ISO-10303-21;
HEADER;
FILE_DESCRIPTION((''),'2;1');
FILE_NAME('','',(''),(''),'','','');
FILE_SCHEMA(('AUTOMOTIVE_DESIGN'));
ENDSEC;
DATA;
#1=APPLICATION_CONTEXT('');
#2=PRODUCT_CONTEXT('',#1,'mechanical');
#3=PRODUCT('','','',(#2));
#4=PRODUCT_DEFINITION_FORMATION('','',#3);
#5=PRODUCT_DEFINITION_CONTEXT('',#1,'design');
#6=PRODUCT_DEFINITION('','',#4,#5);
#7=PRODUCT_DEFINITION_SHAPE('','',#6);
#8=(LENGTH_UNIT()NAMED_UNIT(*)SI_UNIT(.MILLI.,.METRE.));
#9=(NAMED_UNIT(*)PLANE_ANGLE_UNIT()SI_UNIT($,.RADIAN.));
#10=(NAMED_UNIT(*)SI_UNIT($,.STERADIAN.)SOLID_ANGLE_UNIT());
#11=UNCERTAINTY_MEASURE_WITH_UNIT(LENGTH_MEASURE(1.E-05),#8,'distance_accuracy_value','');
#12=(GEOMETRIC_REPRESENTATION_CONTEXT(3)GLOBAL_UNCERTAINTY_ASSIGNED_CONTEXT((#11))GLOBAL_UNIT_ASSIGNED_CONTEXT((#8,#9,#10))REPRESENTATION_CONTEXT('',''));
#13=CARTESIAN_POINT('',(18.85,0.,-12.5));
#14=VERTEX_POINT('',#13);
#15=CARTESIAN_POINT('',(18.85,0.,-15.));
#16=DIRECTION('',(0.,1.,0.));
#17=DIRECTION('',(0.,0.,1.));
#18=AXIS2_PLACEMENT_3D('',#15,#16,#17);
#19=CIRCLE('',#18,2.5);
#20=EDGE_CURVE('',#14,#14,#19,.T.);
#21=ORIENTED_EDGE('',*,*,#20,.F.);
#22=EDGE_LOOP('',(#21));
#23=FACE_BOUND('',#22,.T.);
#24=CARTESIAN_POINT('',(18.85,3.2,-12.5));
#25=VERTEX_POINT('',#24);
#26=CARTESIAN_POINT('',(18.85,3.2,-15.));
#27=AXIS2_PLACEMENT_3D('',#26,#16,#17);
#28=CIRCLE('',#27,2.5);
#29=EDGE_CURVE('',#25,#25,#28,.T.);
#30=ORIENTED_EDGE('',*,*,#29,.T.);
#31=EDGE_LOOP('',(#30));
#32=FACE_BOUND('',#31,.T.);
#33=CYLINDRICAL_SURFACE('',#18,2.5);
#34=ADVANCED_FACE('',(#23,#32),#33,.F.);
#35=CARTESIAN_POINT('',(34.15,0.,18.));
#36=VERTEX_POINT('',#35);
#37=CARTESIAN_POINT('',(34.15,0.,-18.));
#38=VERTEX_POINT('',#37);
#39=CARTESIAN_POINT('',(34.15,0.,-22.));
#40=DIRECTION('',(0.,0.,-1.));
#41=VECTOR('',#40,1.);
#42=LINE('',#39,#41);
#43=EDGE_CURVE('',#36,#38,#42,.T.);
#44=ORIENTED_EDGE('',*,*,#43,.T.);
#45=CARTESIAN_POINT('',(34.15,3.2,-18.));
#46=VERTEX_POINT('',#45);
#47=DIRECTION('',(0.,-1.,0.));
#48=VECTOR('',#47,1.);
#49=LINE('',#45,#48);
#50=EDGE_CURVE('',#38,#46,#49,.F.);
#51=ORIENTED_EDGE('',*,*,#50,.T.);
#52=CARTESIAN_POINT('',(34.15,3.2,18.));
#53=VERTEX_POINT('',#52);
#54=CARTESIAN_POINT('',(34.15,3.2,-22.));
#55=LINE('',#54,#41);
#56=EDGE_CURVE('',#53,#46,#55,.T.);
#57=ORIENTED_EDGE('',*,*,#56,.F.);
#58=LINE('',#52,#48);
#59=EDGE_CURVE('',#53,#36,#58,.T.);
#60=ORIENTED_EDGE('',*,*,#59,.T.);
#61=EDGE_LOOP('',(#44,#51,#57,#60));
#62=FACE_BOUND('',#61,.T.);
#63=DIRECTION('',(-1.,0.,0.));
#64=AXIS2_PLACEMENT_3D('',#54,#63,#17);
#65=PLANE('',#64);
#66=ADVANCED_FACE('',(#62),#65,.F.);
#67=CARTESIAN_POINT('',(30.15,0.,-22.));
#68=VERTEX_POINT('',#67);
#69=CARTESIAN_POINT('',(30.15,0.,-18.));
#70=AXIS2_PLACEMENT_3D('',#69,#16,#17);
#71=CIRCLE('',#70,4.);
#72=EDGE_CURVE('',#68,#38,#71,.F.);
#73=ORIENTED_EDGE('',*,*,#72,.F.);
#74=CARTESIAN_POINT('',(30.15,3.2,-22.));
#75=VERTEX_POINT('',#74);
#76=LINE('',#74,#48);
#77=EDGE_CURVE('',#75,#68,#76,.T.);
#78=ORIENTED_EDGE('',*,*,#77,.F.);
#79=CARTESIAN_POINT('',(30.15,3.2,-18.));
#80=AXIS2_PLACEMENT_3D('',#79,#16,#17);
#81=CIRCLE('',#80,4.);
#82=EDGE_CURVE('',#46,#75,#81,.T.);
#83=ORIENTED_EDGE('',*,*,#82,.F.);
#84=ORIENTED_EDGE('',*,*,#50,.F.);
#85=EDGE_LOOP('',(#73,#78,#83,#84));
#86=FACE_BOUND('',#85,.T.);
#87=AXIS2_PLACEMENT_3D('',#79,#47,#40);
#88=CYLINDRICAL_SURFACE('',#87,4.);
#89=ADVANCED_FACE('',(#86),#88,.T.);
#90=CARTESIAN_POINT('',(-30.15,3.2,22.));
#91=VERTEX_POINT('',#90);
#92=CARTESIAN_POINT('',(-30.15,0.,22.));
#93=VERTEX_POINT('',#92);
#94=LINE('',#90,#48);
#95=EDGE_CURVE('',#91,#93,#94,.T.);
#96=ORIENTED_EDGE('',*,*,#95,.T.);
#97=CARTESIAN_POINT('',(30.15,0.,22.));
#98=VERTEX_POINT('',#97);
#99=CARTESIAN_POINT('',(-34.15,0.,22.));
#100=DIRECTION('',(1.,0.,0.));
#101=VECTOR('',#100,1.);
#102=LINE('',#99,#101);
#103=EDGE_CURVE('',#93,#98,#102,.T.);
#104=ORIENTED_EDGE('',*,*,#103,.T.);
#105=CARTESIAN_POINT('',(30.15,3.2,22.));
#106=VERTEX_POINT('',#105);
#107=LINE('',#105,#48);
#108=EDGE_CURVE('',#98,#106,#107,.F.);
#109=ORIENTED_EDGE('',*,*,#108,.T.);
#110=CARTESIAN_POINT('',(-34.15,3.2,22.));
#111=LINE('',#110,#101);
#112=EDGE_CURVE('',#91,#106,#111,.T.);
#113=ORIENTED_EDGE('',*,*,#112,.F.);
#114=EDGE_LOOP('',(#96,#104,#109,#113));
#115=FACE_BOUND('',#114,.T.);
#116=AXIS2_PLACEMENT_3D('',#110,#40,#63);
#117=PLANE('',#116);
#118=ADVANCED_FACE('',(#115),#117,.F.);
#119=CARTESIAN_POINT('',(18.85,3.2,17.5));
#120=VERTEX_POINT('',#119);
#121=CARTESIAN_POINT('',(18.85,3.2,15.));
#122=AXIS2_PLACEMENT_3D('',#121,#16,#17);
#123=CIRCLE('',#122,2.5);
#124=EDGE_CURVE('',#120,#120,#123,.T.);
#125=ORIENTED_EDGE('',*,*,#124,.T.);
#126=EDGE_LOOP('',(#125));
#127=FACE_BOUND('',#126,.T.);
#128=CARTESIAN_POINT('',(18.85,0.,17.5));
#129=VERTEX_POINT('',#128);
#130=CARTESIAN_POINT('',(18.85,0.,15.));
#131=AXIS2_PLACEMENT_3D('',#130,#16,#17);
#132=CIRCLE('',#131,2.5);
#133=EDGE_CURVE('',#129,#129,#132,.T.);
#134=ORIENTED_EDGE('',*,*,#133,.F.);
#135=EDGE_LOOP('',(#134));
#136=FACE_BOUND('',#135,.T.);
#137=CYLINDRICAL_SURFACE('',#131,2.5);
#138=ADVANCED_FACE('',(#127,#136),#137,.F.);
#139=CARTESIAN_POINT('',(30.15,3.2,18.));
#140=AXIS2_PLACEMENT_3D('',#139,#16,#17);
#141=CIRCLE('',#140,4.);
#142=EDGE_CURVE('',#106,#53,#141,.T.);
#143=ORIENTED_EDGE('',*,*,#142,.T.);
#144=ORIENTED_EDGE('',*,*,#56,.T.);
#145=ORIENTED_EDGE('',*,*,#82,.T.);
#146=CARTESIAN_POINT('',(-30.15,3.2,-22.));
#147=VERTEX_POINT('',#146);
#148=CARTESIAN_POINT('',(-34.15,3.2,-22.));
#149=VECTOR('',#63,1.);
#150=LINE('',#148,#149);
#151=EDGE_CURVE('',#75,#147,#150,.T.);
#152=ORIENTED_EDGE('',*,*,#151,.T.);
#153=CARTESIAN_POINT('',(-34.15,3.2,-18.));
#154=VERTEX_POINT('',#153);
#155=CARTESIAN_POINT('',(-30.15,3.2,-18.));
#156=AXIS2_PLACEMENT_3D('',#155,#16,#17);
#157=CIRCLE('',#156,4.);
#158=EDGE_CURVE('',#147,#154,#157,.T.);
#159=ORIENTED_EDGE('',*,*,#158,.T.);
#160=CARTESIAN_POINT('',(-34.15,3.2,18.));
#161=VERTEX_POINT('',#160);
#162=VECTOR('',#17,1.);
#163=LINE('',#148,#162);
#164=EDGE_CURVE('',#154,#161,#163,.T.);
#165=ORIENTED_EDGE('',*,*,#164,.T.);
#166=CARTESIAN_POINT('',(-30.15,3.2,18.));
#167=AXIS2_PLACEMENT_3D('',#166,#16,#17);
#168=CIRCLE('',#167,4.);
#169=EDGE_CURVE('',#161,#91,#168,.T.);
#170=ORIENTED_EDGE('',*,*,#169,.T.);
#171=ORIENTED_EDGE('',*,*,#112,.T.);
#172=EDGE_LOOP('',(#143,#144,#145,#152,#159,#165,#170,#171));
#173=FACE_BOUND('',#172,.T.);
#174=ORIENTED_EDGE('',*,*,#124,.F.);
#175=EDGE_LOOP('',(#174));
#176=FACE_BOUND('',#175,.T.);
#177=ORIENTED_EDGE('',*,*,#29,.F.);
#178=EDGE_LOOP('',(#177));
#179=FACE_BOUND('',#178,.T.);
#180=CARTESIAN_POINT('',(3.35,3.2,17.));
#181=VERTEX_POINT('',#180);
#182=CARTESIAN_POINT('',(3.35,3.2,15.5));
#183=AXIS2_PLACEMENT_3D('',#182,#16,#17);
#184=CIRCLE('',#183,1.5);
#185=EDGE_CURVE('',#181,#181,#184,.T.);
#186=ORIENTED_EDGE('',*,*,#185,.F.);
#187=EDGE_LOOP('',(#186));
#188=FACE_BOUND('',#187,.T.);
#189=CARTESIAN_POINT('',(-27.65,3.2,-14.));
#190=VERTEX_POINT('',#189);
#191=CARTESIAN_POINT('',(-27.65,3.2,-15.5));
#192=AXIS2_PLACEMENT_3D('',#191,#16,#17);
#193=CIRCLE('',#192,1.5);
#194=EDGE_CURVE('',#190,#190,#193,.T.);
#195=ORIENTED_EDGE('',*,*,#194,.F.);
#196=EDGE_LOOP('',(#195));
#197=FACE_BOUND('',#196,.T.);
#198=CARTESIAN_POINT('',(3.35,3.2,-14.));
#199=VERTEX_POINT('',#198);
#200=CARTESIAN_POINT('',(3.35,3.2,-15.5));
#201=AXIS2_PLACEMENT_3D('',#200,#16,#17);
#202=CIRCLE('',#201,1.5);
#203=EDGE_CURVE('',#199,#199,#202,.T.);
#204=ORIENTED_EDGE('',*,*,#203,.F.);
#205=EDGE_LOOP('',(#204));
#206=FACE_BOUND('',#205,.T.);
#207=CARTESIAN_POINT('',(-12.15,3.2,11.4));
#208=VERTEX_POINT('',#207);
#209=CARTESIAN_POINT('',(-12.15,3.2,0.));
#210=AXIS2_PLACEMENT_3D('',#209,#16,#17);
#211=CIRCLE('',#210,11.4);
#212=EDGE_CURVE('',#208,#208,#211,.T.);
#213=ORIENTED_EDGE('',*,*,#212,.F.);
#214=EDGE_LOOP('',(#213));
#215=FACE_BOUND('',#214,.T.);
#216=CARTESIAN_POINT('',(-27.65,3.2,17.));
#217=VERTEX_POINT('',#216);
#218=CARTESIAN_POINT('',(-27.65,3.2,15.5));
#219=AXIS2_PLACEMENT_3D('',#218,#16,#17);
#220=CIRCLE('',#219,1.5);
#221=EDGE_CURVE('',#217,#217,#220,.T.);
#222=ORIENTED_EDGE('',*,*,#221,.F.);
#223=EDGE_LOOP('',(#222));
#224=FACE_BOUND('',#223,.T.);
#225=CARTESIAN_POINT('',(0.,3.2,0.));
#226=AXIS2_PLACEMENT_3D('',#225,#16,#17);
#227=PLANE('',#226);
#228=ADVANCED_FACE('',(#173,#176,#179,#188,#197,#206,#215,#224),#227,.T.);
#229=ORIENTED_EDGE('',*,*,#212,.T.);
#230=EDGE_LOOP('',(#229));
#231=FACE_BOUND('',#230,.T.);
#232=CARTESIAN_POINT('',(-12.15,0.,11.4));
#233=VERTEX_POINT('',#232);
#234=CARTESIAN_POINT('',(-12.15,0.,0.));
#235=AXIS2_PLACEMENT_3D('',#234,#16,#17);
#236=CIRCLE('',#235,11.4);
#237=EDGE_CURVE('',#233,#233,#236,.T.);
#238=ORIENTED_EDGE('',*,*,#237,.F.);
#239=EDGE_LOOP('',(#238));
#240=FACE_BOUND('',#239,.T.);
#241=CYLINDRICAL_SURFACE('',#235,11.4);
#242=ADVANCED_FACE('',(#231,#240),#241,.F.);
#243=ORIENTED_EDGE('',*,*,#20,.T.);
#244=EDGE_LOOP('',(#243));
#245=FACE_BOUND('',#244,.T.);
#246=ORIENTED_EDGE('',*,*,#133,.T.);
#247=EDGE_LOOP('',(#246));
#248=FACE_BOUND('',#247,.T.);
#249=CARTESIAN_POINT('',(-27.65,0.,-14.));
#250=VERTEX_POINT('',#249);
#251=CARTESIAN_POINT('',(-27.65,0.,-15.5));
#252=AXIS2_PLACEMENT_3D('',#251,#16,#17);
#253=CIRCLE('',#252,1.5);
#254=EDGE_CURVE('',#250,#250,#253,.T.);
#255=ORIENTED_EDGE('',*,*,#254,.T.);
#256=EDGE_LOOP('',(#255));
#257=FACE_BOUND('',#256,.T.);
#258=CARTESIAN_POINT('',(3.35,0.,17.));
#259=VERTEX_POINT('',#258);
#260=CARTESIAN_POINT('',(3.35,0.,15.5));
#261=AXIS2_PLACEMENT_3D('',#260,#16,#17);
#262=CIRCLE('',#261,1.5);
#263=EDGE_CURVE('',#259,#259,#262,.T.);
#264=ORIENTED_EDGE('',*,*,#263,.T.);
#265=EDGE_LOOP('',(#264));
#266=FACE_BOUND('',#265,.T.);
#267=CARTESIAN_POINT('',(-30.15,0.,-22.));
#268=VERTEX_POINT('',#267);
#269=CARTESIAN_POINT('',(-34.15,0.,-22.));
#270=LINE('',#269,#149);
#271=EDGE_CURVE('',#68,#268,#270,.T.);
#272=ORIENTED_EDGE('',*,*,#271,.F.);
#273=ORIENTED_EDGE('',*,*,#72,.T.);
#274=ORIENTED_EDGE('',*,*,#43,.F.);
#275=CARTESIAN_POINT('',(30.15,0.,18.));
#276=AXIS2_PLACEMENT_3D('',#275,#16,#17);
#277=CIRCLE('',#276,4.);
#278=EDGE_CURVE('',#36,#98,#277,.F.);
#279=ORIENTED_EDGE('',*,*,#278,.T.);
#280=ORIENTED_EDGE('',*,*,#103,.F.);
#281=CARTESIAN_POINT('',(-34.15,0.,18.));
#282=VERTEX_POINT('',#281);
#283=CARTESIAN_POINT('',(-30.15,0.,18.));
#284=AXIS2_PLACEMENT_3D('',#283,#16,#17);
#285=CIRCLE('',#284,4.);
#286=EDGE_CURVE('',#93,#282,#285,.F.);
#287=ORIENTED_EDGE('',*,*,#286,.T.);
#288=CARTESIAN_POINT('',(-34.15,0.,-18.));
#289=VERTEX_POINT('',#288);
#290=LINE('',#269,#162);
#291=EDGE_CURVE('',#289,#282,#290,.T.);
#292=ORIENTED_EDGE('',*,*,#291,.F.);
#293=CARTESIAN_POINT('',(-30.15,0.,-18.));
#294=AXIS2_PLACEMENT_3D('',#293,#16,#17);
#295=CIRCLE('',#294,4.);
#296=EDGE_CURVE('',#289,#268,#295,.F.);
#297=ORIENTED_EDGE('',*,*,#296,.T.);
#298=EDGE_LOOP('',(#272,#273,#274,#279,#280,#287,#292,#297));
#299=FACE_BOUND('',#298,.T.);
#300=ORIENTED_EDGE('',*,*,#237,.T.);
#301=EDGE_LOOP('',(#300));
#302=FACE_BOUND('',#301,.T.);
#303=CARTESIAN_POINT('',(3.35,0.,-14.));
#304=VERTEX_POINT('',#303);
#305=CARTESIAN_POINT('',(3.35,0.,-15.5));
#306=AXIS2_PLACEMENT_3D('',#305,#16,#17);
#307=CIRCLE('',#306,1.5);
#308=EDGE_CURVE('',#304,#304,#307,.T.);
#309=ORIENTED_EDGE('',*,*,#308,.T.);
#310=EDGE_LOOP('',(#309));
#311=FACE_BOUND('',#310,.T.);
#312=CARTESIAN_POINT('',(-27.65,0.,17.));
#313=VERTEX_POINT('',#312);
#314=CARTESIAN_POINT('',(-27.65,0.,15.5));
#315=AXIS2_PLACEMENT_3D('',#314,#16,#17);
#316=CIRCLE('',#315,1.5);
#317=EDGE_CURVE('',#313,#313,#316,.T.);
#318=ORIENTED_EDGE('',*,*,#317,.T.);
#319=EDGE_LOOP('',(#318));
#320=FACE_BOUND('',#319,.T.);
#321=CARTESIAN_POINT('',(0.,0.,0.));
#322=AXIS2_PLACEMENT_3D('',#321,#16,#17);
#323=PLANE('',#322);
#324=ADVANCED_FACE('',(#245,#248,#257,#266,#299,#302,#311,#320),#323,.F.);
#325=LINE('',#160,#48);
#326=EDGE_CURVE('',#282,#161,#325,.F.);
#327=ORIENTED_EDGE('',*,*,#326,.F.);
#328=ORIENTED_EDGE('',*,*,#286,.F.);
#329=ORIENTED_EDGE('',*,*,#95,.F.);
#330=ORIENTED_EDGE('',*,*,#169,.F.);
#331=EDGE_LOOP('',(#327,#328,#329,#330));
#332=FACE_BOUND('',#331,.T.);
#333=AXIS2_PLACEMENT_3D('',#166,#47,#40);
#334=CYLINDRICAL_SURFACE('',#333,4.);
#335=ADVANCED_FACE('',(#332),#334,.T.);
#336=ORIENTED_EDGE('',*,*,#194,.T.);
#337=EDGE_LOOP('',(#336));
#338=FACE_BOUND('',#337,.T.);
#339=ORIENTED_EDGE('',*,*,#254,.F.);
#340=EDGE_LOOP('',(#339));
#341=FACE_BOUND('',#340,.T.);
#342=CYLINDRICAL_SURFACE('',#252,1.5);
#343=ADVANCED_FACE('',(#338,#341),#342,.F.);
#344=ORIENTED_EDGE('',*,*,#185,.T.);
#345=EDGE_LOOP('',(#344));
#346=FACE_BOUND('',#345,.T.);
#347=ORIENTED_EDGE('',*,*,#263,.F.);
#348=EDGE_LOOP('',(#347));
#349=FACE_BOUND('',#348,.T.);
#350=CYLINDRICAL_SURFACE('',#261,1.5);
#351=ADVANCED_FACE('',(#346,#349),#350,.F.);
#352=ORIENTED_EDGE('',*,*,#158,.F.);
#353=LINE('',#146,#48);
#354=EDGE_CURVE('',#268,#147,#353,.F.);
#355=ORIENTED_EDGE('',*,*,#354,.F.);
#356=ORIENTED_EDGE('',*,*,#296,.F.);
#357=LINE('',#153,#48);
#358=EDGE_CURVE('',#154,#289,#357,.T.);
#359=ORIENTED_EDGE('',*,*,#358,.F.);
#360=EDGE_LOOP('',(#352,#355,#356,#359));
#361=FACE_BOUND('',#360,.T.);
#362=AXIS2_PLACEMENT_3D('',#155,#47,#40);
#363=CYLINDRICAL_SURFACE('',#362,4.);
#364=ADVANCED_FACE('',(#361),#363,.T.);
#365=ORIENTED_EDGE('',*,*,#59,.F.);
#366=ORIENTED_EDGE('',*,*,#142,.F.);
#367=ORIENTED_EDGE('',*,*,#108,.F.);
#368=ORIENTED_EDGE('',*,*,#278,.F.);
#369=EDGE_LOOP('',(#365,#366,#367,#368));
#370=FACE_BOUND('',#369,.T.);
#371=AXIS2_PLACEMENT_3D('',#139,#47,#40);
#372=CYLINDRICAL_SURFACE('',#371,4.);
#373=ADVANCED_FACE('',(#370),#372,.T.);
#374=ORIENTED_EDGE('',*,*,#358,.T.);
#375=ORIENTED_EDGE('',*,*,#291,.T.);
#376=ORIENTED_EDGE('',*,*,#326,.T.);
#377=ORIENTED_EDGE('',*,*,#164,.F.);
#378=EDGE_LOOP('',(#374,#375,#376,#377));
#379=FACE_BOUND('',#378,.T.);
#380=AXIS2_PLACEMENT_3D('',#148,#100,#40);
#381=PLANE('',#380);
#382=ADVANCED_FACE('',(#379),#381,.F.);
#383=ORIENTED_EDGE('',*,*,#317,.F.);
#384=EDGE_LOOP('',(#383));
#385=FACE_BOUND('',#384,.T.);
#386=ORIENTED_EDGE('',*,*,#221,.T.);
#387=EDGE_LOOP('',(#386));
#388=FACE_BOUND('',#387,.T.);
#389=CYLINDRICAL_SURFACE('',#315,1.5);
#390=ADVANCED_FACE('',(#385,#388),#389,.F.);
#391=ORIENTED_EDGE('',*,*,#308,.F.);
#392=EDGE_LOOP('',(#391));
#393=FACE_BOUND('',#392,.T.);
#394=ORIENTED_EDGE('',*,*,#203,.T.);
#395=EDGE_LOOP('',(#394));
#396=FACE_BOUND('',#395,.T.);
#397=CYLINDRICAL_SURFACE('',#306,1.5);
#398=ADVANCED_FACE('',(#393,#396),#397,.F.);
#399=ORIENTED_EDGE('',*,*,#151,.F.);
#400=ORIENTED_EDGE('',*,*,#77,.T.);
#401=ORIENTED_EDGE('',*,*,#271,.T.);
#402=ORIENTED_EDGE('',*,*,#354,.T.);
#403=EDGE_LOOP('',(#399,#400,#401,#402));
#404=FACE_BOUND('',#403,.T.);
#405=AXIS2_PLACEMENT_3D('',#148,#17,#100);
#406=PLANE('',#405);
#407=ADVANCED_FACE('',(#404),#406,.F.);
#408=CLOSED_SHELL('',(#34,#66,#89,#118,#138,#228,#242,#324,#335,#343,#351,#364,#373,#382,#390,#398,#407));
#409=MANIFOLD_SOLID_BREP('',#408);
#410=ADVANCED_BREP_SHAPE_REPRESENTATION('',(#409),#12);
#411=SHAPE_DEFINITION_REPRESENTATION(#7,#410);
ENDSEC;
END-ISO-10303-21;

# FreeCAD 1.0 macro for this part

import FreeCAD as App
import Part
import Sketcher

V = App.Vector
Q = App.Units.Quantity


def edges_at(feature, points):
    """Names of the edges that pass closest to the given points."""
    edges = feature.Shape.Edges
    near = lambda p: min(range(len(edges)), key=lambda i: edges[i].distToShape(Part.Vertex(*p))[0])
    return sorted({f"Edge{near(p) + 1}" for p in points})


def add_polygon(sketch, points):
    """Adds a closed chain of lines whose ends are joined by coincident constraints."""
    first, n = sketch.GeometryCount, len(points)
    for a, b in zip(points, points[1:] + points[:1]):
        sketch.addGeometry(Part.LineSegment(App.Vector(*a, 0), App.Vector(*b, 0)), False)
    for i in range(n):
        sketch.addConstraint(Sketcher.Constraint("Coincident", first + i, 2, first + (i + 1) % n, 1))

doc = App.newDocument("Part")
body = doc.addObject("PartDesign::Body", "Body")

# Sketch on XZ plane
sketch1 = body.newObject("Sketcher::SketchObject", "Sketch")
sketch1.AttachmentSupport = (doc.getObject("XZ_Plane"), [""])
sketch1.MapMode = "FlatFace"
add_polygon(sketch1, [(-34, -22), (-34, 22), (34, 22), (34, -22)])  # lines 0-3
sketch1.addConstraint(Sketcher.Constraint("Vertical", 0))
sketch1.addConstraint(Sketcher.Constraint("Horizontal", 1))
sketch1.addConstraint(Sketcher.Constraint("Vertical", 2))
sketch1.addConstraint(Sketcher.Constraint("Horizontal", 3))
sketch1.addConstraint(Sketcher.Constraint("Symmetric", 0, 2, 2, 2, -1, 1))
sketch1.addConstraint(Sketcher.Constraint("DistanceY", 0, 1, 0, 2, Q("44 mm")))
sketch1.addConstraint(Sketcher.Constraint("DistanceX", 1, 1, 1, 2, Q("68.3 mm")))
pad1 = body.newObject("PartDesign::Pad", "Pad")
pad1.Profile = sketch1
pad1.Length = 3.2
pad1.Reversed = True

# Sketch on XZ plane
sketch2 = body.newObject("Sketcher::SketchObject", "Sketch001")
sketch2.AttachmentSupport = (doc.getObject("XZ_Plane"), [""])
sketch2.MapMode = "FlatFace"
sketch2.AttachmentOffset = App.Placement(V(0, 0, -3.2), App.Rotation())
sketch2.addGeometry(Part.Circle(V(-12.2, 0, 0), V(0, 0, 1), 11.4), False)
sketch2.addGeometry(Part.Circle(V(18.9, -15, 0), V(0, 0, 1), 2.5), False)
sketch2.addGeometry(Part.Circle(V(18.9, 15, 0), V(0, 0, 1), 2.5), False)
sketch2.addGeometry(Part.Circle(V(-27.6, -15.5, 0), V(0, 0, 1), 1.5), False)
sketch2.addGeometry(Part.Circle(V(3.4, -15.5, 0), V(0, 0, 1), 1.5), False)
sketch2.addGeometry(Part.Circle(V(3.4, 15.5, 0), V(0, 0, 1), 1.5), False)
sketch2.addGeometry(Part.Circle(V(-27.6, 15.5, 0), V(0, 0, 1), 1.5), False)
sketch2.addConstraint(Sketcher.Constraint("Equal", 1, 2))
sketch2.addConstraint(Sketcher.Constraint("Equal", 3, 4))
sketch2.addConstraint(Sketcher.Constraint("Equal", 4, 5))
sketch2.addConstraint(Sketcher.Constraint("Equal", 5, 6))
sketch2.addConstraint(Sketcher.Constraint("Symmetric", 1, 3, 2, 3, -1))
sketch2.addConstraint(Sketcher.Constraint("Symmetric", 4, 3, 5, 3, -1))
sketch2.addConstraint(Sketcher.Constraint("Symmetric", 3, 3, 6, 3, -1))
sketch2.addConstraint(Sketcher.Constraint("PointOnObject", 0, 3, -1))
sketch2.addConstraint(Sketcher.Constraint("Horizontal", 3, 3, 4, 3))
sketch2.addConstraint(Sketcher.Constraint("Diameter", 1, Q("5 mm")))
sketch2.addConstraint(Sketcher.Constraint("Diameter", 3, Q("3 mm")))
sketch2.addConstraint(Sketcher.Constraint("Diameter", 0, Q("22.8 mm")))
sketch2.addConstraint(Sketcher.Constraint("DistanceY", 1, 3, -1, 1, Q("15 mm")))
sketch2.addConstraint(Sketcher.Constraint("DistanceX", 0, 3, 1, 3, Q("31 mm")))
sketch2.addConstraint(Sketcher.Constraint("DistanceX", 3, 3, 4, 3, Q("31 mm")))
sketch2.addConstraint(Sketcher.Constraint("DistanceY", 4, 3, 5, 3, Q("31 mm")))
sketch2.addConstraint(Sketcher.Constraint("DistanceX", 3, 3, 0, 3, Q("15.5 mm")))
sketch2.addConstraint(Sketcher.Constraint("DistanceX", 0, 3, -1, 1, Q("12.15 mm")))
pocket1 = body.newObject("PartDesign::Pocket", "Pocket")
pocket1.Profile = sketch2
pocket1.Type = "ThroughAll"
pocket1.Reversed = True
doc.recompute()

fillet = body.newObject("PartDesign::Fillet", "Fillet")
fillet.Base = (pocket1, edges_at(pocket1, [
    (34.15, 1.6, 22),
    (-34.15, 1.6, 22),
    (-34.15, 1.6, -22),
    (34.15, 1.6, -22),
]))
fillet.Radius = 4

doc.recompute()
